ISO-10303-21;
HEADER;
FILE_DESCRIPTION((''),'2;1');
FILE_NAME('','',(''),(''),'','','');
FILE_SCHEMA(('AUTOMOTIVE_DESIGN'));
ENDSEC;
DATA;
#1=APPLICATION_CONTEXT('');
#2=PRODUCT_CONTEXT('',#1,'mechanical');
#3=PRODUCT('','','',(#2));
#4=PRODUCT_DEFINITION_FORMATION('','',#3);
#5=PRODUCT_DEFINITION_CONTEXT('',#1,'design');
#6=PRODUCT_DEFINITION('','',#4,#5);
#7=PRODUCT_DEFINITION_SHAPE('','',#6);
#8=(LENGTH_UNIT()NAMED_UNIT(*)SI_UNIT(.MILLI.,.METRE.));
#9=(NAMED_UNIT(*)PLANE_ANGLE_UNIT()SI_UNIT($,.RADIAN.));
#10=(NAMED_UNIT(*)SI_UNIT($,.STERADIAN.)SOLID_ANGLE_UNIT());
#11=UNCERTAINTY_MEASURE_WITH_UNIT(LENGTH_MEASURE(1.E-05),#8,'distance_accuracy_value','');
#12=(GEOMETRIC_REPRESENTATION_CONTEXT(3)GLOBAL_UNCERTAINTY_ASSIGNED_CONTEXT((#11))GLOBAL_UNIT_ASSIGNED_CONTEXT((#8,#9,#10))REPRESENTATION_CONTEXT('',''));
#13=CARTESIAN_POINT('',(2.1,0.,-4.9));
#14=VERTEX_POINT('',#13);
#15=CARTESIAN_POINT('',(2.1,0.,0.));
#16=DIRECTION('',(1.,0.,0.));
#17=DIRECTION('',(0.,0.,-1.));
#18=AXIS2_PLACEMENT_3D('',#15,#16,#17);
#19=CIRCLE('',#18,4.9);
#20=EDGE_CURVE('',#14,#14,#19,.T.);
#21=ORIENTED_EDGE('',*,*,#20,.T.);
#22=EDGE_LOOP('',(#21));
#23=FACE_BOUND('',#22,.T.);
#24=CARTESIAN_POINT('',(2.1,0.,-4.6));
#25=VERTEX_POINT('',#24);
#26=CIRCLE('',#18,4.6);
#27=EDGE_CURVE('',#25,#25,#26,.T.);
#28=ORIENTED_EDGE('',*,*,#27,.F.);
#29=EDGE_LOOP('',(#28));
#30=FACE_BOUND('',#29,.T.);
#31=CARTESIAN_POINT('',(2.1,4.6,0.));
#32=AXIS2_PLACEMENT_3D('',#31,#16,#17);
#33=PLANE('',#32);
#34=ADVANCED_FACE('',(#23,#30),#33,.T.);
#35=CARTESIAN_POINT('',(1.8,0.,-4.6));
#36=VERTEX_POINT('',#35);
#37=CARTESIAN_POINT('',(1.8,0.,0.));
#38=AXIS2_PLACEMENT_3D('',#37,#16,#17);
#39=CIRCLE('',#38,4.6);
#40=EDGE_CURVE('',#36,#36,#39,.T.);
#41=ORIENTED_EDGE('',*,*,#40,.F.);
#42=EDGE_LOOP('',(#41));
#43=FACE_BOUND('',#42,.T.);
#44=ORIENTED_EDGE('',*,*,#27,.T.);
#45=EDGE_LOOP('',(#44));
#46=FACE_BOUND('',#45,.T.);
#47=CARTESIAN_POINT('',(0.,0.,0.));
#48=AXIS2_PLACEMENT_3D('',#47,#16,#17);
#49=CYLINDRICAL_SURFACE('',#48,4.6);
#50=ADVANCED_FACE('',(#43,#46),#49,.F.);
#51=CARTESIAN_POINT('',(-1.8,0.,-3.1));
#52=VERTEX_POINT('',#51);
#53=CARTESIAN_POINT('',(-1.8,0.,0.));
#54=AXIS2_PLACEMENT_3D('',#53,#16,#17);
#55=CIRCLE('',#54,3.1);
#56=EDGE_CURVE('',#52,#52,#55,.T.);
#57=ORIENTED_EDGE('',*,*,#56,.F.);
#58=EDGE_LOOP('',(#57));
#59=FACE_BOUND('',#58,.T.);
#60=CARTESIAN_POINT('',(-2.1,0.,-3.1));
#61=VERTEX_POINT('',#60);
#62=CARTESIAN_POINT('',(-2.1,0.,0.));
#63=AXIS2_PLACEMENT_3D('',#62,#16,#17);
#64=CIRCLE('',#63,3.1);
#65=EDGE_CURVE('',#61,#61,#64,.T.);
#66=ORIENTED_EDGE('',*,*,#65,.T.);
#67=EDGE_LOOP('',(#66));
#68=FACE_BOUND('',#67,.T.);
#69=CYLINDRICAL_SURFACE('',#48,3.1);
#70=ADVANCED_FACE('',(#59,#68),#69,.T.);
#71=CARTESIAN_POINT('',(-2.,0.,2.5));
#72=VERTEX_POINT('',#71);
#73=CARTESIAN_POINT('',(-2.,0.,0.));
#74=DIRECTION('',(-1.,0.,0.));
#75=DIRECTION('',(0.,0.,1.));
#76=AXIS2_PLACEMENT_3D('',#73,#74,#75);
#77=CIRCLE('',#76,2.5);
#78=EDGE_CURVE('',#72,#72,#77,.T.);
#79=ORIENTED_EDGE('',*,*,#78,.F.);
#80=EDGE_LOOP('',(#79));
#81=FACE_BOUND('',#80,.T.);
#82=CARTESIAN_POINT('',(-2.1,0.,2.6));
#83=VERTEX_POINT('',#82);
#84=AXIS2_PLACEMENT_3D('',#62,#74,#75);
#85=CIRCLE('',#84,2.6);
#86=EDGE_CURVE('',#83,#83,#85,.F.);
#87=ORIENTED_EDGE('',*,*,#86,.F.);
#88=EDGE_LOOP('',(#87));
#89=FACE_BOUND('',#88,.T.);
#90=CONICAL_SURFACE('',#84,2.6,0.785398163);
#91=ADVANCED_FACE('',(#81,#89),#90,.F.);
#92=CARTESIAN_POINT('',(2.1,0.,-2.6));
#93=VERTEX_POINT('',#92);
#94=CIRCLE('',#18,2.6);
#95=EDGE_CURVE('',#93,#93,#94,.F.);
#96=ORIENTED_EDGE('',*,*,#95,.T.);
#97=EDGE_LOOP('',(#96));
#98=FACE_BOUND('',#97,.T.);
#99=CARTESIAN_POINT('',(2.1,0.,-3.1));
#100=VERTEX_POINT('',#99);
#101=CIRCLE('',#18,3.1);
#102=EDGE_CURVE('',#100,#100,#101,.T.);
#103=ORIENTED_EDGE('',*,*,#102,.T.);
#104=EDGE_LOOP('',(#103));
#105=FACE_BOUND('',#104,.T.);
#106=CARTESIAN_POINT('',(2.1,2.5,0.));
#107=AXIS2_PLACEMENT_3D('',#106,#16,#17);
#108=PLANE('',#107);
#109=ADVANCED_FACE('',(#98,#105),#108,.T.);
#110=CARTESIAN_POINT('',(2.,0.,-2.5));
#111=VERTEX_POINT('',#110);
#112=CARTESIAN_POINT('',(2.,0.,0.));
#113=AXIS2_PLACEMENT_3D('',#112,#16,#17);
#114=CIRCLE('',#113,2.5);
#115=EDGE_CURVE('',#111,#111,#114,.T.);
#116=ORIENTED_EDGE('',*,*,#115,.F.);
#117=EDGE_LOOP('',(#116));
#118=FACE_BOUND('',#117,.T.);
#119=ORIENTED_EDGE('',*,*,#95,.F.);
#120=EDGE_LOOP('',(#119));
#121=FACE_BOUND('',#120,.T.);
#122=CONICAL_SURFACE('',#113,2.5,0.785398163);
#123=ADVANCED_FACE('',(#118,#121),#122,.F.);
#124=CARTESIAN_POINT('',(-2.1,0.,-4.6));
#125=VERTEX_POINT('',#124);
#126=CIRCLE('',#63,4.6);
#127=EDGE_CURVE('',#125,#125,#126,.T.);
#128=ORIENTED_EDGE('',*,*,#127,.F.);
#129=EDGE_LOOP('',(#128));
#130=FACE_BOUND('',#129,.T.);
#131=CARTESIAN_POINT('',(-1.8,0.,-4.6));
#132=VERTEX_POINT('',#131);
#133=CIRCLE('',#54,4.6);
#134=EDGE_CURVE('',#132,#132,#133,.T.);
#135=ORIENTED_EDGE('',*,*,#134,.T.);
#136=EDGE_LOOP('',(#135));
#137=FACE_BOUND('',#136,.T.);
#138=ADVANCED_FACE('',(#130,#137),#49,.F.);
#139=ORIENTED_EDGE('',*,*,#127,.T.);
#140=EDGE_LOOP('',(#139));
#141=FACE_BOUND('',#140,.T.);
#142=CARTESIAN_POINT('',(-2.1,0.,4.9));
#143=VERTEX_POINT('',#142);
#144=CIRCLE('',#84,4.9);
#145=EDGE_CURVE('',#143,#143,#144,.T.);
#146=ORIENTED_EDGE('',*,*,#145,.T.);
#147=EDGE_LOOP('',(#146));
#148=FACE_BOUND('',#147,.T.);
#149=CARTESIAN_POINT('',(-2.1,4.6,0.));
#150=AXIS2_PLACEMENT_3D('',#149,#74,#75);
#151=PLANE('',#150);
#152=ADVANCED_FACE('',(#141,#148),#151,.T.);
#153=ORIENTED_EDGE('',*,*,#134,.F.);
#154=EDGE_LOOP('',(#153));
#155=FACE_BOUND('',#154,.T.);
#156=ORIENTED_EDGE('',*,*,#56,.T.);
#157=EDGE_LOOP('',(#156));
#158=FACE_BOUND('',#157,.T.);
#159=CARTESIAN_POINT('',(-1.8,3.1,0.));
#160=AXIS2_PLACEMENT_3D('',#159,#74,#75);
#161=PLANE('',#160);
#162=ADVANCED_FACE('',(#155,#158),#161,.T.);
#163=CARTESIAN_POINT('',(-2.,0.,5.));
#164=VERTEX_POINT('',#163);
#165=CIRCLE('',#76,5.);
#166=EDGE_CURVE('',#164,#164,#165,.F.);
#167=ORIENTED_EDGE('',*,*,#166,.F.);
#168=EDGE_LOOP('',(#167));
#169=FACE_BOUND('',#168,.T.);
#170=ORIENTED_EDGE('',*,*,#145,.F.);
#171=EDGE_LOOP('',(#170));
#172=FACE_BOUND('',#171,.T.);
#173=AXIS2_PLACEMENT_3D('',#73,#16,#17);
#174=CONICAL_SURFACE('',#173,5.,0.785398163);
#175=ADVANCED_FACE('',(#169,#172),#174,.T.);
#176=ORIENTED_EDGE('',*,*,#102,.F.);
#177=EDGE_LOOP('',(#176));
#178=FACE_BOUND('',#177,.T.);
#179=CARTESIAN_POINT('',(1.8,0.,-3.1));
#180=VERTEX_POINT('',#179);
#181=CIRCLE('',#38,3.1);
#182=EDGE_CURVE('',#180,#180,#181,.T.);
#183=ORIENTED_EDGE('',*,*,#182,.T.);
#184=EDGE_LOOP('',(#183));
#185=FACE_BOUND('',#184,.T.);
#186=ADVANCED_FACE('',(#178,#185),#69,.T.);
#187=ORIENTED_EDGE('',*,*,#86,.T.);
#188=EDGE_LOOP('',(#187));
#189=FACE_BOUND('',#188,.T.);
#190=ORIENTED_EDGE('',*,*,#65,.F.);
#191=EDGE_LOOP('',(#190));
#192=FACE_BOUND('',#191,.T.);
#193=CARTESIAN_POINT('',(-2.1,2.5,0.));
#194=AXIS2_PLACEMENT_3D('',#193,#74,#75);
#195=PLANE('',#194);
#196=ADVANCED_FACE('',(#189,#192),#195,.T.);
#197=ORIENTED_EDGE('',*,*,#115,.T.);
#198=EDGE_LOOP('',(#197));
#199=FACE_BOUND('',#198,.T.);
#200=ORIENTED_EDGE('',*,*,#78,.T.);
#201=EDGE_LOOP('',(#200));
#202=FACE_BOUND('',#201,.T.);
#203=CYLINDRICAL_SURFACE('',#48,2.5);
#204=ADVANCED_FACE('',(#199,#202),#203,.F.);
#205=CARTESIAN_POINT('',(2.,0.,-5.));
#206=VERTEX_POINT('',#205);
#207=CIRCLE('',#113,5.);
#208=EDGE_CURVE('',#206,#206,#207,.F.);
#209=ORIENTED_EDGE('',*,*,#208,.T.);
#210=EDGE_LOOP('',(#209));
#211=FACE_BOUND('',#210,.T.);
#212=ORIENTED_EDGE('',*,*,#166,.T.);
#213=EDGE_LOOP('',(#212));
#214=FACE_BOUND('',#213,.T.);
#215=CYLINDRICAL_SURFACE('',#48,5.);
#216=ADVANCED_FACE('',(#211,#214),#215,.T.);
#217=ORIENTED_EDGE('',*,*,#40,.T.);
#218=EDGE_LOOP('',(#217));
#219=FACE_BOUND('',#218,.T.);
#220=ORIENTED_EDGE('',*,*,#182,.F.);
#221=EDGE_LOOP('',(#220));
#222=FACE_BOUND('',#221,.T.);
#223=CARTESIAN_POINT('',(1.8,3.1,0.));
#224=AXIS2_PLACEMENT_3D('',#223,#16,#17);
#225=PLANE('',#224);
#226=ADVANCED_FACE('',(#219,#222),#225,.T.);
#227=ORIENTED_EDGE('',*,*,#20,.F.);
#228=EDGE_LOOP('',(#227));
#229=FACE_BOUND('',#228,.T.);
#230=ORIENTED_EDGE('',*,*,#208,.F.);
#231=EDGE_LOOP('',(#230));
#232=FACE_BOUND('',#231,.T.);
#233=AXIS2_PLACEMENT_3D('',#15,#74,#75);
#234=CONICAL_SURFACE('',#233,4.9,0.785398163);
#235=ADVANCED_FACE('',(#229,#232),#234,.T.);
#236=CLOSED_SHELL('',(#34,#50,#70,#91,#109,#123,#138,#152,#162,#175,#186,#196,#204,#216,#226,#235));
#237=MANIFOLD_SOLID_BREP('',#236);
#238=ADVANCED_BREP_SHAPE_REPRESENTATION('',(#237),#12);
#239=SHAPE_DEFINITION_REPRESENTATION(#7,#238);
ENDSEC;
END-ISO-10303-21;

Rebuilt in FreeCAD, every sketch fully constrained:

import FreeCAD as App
import Part
import Sketcher
from FreeCAD import Vector
Q = App.Units.Quantity


def edges_at(feature, points):
    """Names of the edges that pass closest to the given points."""
    edges = feature.Shape.Edges
    near = lambda p: min(range(len(edges)), key=lambda i: edges[i].distToShape(Part.Vertex(*p))[0])
    return sorted({f"Edge{near(p) + 1}" for p in points})


def add_polygon(sketch, points):
    """Adds a closed chain of lines whose ends are joined by coincident constraints."""
    first, n = sketch.GeometryCount, len(points)
    for a, b in zip(points, points[1:] + points[:1]):
        sketch.addGeometry(Part.LineSegment(App.Vector(*a, 0), App.Vector(*b, 0)), False)
    for i in range(n):
        sketch.addConstraint(Sketcher.Constraint("Coincident", first + i, 2, first + (i + 1) % n, 1))

doc = App.newDocument("Part")
body = doc.addObject("PartDesign::Body", "Body")

# Sketch on XY plane
sketch1 = doc.addObject("Sketcher::SketchObject", "Sketch")
body.addObject(sketch1)
sketch1.AttachmentSupport = (doc.XY_Plane, [""])
sketch1.MapMode = "FlatFace"
add_polygon(sketch1, [(-2.1, 2.5), (2.1, 2.5), (2.1, 3.1), (1.8, 3.1), (1.8, 4.6), (2.1, 4.6), (2.1, 5), (-2.1, 5), (-2.1, 4.6), (-1.8, 4.6), (-1.8, 3.1), (-2.1, 3.1)])  # lines 0-11
sketch1.addConstraint([
    Sketcher.Constraint("Horizontal", 0),
    Sketcher.Constraint("Vertical", 1),
    Sketcher.Constraint("Horizontal", 2),
    Sketcher.Constraint("Vertical", 3),
    Sketcher.Constraint("Horizontal", 4),
    Sketcher.Constraint("Vertical", 5),
    Sketcher.Constraint("Horizontal", 6),
    Sketcher.Constraint("Vertical", 7),
    Sketcher.Constraint("Horizontal", 8),
    Sketcher.Constraint("Vertical", 9),
    Sketcher.Constraint("Horizontal", 10),
    Sketcher.Constraint("Vertical", 11),
    Sketcher.Constraint("Symmetric", 4, 2, 7, 2, -2),
    Sketcher.Constraint("Symmetric", 2, 2, 9, 2, -2),
    Sketcher.Constraint("Vertical", 1, 2, 4, 2),
    Sketcher.Constraint("Vertical", 7, 2, 10, 2),
    Sketcher.Constraint("DistanceX", 0, 1, 0, 2, Q("4.2 mm")),
    Sketcher.Constraint("DistanceX", 2, 2, 2, 1, Q("0.3 mm")),
    Sketcher.Constraint("DistanceY", 1, 1, 1, 2, Q("0.6 mm")),
    Sketcher.Constraint("DistanceY", 3, 1, 3, 2, Q("1.5 mm")),
    Sketcher.Constraint("DistanceY", 5, 1, 5, 2, Q("0.4 mm")),
    Sketcher.Constraint("DistanceY", -1, 1, 5, 2, Q("5 mm")),
])
revolution = doc.addObject("PartDesign::Revolution", "Revolution")
body.addObject(revolution)
revolution.Profile = sketch1
revolution.ReferenceAxis = (sketch1, ["H_Axis"])
revolution.Angle = 360
doc.recompute()

chamfer = doc.addObject("PartDesign::Chamfer", "Chamfer")
body.addObject(chamfer)
chamfer.Base = (revolution, edges_at(revolution, [
    (2.1, 0, 5),
    (-2.1, 0, 5),
    (-2.1, 0, 2.5),
    (2.1, 0, 2.5),
]))
chamfer.Size = 0.1

doc.recompute()
